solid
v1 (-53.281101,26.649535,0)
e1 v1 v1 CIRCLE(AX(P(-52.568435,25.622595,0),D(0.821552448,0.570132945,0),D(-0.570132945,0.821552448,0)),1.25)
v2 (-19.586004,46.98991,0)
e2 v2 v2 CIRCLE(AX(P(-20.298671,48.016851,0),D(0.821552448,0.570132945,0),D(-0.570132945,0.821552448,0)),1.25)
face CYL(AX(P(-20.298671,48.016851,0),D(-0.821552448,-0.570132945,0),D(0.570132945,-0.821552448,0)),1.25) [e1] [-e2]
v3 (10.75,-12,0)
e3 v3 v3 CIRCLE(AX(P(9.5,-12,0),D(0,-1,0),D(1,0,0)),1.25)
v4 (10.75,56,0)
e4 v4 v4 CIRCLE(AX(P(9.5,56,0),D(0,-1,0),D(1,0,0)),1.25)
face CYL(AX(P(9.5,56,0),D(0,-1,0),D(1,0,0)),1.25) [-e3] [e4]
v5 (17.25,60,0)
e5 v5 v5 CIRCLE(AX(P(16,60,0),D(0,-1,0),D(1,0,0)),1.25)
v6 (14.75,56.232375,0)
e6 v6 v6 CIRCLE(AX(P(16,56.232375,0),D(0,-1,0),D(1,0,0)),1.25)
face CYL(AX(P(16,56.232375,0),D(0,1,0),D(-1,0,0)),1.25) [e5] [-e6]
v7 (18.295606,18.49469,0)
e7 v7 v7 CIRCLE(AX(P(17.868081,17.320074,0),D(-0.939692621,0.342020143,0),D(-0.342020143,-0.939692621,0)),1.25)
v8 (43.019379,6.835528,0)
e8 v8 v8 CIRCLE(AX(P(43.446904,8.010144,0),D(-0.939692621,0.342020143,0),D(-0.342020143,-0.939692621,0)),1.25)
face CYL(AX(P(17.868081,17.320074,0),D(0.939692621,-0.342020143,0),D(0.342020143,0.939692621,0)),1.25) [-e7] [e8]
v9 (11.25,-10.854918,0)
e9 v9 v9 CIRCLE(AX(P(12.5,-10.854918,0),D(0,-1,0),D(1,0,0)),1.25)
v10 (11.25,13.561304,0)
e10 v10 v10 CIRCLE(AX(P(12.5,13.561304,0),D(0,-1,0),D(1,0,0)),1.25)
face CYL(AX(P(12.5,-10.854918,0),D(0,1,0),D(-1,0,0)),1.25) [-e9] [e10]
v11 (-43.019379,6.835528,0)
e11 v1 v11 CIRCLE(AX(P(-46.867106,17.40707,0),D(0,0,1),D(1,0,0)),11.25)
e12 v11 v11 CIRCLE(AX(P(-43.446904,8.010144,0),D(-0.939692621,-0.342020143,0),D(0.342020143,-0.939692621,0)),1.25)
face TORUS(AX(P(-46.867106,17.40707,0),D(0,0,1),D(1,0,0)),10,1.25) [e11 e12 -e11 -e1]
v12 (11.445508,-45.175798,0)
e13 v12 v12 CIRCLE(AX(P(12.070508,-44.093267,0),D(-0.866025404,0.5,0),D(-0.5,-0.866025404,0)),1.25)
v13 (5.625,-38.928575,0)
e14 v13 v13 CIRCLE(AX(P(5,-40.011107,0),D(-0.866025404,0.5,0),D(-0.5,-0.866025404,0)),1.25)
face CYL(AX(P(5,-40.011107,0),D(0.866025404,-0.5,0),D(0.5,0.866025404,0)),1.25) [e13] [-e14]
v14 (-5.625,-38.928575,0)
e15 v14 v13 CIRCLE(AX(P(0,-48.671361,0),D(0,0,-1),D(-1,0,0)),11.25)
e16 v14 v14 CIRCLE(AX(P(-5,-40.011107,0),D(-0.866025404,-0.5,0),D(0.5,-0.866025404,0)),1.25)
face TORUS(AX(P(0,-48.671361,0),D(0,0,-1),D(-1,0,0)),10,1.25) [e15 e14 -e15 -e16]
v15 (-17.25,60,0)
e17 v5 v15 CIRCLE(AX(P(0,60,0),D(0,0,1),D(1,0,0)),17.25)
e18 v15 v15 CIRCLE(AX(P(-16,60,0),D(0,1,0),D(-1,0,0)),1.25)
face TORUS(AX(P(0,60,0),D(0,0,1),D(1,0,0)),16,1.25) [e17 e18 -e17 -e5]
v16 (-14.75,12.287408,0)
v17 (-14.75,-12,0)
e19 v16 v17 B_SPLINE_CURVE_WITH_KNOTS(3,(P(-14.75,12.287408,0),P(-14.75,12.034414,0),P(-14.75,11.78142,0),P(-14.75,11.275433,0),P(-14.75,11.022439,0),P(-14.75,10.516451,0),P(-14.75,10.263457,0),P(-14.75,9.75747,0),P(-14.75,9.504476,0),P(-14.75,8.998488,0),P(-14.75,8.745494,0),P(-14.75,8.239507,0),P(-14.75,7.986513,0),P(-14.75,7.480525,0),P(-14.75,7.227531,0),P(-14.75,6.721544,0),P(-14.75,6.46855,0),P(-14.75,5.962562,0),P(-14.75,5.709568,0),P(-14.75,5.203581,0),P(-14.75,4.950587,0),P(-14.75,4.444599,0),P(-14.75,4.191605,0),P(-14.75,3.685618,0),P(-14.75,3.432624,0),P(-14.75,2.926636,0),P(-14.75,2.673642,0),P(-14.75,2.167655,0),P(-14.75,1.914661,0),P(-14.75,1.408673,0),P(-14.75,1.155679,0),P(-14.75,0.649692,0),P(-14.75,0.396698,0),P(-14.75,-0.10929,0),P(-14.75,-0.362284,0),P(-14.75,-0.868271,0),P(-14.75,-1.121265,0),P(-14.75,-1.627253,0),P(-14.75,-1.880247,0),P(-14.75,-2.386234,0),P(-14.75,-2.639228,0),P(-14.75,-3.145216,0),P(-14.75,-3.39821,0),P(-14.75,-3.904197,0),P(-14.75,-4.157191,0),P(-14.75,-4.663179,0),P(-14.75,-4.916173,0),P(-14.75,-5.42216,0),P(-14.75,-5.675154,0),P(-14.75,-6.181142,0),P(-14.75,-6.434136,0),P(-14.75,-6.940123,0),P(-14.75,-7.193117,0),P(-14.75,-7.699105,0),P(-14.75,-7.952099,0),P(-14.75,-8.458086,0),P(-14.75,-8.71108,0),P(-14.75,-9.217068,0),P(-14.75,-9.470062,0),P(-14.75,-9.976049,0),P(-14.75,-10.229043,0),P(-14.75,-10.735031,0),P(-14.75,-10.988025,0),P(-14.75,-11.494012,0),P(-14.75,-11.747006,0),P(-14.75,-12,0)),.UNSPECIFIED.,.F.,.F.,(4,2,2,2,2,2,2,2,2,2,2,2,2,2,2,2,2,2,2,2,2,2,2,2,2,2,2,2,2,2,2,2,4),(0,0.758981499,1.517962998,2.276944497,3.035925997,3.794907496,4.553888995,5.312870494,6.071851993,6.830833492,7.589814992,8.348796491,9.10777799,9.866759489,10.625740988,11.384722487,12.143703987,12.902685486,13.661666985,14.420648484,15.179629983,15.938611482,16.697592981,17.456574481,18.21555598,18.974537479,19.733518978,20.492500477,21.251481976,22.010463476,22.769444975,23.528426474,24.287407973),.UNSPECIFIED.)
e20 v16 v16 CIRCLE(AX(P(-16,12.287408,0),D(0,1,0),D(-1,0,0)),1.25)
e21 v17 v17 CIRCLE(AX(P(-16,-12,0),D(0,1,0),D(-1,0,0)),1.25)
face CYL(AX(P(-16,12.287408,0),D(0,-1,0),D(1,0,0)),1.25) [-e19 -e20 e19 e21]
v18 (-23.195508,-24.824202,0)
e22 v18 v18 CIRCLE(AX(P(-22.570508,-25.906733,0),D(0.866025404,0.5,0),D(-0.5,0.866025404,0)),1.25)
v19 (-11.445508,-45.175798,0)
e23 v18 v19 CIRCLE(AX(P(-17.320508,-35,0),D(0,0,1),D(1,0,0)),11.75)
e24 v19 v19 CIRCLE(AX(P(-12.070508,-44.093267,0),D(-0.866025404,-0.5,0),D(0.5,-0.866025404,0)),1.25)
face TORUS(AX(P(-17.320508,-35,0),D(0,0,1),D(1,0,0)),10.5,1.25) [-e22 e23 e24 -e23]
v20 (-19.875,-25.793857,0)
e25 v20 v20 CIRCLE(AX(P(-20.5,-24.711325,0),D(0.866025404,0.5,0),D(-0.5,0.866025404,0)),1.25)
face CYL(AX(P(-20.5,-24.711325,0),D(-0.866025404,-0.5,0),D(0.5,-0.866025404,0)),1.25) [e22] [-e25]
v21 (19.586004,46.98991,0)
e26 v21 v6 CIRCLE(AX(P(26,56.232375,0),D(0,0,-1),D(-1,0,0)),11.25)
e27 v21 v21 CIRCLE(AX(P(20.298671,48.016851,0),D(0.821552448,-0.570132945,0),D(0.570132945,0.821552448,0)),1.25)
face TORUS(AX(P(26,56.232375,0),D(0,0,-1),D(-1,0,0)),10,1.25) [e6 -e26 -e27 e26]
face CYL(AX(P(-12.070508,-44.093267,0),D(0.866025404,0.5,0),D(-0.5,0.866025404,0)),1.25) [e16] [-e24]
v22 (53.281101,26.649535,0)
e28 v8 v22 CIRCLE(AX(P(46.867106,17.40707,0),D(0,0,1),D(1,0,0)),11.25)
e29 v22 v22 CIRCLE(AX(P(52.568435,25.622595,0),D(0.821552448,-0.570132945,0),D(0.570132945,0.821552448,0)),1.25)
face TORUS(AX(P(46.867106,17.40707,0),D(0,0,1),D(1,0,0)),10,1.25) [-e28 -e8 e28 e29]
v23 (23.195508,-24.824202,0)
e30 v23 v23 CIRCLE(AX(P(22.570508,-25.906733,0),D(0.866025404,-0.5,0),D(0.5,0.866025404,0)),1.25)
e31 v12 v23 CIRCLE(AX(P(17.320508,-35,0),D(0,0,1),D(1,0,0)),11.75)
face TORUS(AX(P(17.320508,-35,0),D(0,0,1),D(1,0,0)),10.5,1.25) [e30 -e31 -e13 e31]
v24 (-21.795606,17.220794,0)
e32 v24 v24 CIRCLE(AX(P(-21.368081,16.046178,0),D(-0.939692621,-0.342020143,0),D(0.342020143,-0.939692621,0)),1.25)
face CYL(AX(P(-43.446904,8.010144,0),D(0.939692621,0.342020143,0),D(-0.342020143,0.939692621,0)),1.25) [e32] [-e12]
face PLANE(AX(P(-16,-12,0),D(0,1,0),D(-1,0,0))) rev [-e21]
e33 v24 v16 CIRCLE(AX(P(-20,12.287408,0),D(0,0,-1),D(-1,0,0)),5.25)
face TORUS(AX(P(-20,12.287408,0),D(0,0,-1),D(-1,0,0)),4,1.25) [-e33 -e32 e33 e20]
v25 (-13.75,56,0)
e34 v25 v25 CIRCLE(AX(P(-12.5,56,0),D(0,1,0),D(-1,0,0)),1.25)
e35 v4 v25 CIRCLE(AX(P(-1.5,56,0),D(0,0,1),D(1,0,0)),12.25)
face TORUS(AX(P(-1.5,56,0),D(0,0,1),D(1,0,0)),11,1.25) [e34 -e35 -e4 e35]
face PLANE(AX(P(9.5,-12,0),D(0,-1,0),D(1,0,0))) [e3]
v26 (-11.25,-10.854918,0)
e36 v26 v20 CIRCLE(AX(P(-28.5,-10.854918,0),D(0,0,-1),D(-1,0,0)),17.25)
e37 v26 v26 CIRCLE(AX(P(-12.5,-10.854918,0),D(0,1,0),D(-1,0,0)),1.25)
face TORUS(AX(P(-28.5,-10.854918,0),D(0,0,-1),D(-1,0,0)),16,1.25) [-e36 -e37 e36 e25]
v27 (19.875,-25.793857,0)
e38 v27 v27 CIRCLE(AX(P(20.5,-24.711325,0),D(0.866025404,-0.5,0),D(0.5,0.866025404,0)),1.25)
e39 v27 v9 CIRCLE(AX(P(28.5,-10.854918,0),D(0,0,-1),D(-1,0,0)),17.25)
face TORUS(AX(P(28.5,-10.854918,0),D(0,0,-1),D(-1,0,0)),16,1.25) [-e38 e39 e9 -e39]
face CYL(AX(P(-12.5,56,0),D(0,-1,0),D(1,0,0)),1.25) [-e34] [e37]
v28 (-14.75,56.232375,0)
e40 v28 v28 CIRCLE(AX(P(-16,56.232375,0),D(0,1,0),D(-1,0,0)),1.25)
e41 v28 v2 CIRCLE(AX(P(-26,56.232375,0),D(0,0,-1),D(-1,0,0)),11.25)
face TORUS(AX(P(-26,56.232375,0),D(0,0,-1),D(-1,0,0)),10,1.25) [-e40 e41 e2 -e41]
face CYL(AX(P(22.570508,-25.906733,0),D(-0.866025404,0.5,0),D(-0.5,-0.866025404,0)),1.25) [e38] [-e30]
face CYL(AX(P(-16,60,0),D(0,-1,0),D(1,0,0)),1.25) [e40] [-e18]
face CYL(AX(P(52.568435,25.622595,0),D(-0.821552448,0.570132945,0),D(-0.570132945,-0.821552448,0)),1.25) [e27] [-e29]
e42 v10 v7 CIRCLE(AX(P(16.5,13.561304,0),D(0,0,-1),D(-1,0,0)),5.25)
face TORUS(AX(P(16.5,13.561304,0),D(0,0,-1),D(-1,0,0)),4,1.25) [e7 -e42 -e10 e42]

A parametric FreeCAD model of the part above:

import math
import FreeCAD as App
import Part
import Sketcher
from FreeCAD import Vector
Q = App.Units.Quantity

doc = App.newDocument("Part")
body = doc.addObject("PartDesign::Body", "Body")

# Sketch on XZ plane
sketch1 = body.newObject("Sketcher::SketchObject", "Sketch")
sketch1.AttachmentSupport = (doc.getObject("XZ_Plane"), [""])
sketch1.MapMode = "FlatFace"
sketch1.AttachmentOffset = App.Placement(Vector(0, 0, 12), App.Rotation())
sketch1.addGeometry(Part.Circle(Vector(9.5, 0, 0), Vector(0, 0, 1), 1.2), False)
sketch1.addConstraint([
    Sketcher.Constraint("PointOnObject", 0, 3, -1),
    Sketcher.Constraint("Diameter", 0, 2.5),
    Sketcher.Constraint("DistanceX", -1, 1, 0, 3, 9.5),
])

# Sketch on XY plane
sketch2 = body.newObject("Sketcher::SketchObject", "Sketch001")
sketch2.AttachmentSupport = (doc.getObject("XY_Plane"), [""])
sketch2.MapMode = "FlatFace"
sketch2.addGeometry([
    Part.LineSegment(Vector(-16, -12, 0), Vector(-16, 12.3, 0)),  # 0
    Part.ArcOfCircle(Part.Circle(Vector(-20, 12.3, 0), Vector(0, 0, 1), 4), math.radians(0), math.radians(110)),  # 1
    Part.LineSegment(Vector(-21.4, 16, 0), Vector(-43.4, 8, 0)),  # 2
    Part.ArcOfCircle(Part.Circle(Vector(-46.9, 17.4, 0), Vector(0, 0, 1), 10), math.radians(125), math.radians(290)),  # 3
    Part.LineSegment(Vector(-52.6, 25.6, 0), Vector(-20.3, 48, 0)),  # 4
    Part.ArcOfCircle(Part.Circle(Vector(-26, 56.2, 0), Vector(0, 0, 1), 10), math.radians(-55), math.radians(0)),  # 5
    Part.LineSegment(Vector(-16, 56.2, 0), Vector(-16, 60, 0)),  # 6
    Part.ArcOfCircle(Part.Circle(Vector(0, 60, 0), Vector(0, 0, 1), 16), math.radians(0), math.radians(180)),  # 7
    Part.LineSegment(Vector(16, 60, 0), Vector(16, 56.2, 0)),  # 8
    Part.ArcOfCircle(Part.Circle(Vector(26, 56.2, 0), Vector(0, 0, 1), 10), math.radians(180), math.radians(235)),  # 9
    Part.LineSegment(Vector(20.3, 48, 0), Vector(52.6, 25.6, 0)),  # 10
    Part.ArcOfCircle(Part.Circle(Vector(46.9, 17.4, 0), Vector(0, 0, 1), 10), math.radians(-110), math.radians(55)),  # 11
    Part.LineSegment(Vector(43.4, 8, 0), Vector(17.9, 17.3, 0)),  # 12
    Part.ArcOfCircle(Part.Circle(Vector(16.5, 13.6, 0), Vector(0, 0, 1), 4), math.radians(70), math.radians(180)),  # 13
    Part.LineSegment(Vector(12.5, 13.6, 0), Vector(12.5, -10.9, 0)),  # 14
    Part.ArcOfCircle(Part.Circle(Vector(28.5, -10.9, 0), Vector(0, 0, 1), 16), math.radians(180), math.radians(240)),  # 15
    Part.LineSegment(Vector(20.5, -24.7, 0), Vector(22.6, -25.9, 0)),  # 16
    Part.ArcOfCircle(Part.Circle(Vector(17.3, -35, 0), Vector(0, 0, 1), 10.5), math.radians(-120), math.radians(60)),  # 17
    Part.LineSegment(Vector(12.1, -44.1, 0), Vector(5, -40, 0)),  # 18
    Part.ArcOfCircle(Part.Circle(Vector(0, -48.7, 0), Vector(0, 0, 1), 10), math.radians(60), math.radians(120)),  # 19
    Part.LineSegment(Vector(-5, -40, 0), Vector(-12.1, -44.1, 0)),  # 20
    Part.ArcOfCircle(Part.Circle(Vector(-17.3, -35, 0), Vector(0, 0, 1), 10.5), math.radians(120), math.radians(300)),  # 21
    Part.LineSegment(Vector(-22.6, -25.9, 0), Vector(-20.5, -24.7, 0)),  # 22
    Part.ArcOfCircle(Part.Circle(Vector(-28.5, -10.9, 0), Vector(0, 0, 1), 16), math.radians(-60), math.radians(0)),  # 23
    Part.LineSegment(Vector(-12.5, -10.9, 0), Vector(-12.5, 56, 0)),  # 24
    Part.ArcOfCircle(Part.Circle(Vector(-1.5, 56, 0), Vector(0, 0, 1), 11), math.radians(0), math.radians(180)),  # 25
    Part.LineSegment(Vector(9.5, 56, 0), Vector(9.5, -12, 0)),  # 26
], False)
sketch2.addConstraint([
    Sketcher.Constraint("Tangent", 0, 2, 1, 1),
    Sketcher.Constraint("Tangent", 1, 2, 2, 1),
    Sketcher.Constraint("Tangent", 2, 2, 3, 2),
    Sketcher.Constraint("Tangent", 3, 1, 4, 1),
    Sketcher.Constraint("Tangent", 4, 2, 5, 1),
    Sketcher.Constraint("Tangent", 5, 2, 6, 1),
    Sketcher.Constraint("Tangent", 6, 2, 7, 2),
    Sketcher.Constraint("Tangent", 7, 1, 8, 1),
    Sketcher.Constraint("Tangent", 8, 2, 9, 1),
    Sketcher.Constraint("Tangent", 9, 2, 10, 1),
    Sketcher.Constraint("Tangent", 10, 2, 11, 2),
    Sketcher.Constraint("Tangent", 11, 1, 12, 1),
    Sketcher.Constraint("Tangent", 12, 2, 13, 1),
    Sketcher.Constraint("Tangent", 13, 2, 14, 1),
    Sketcher.Constraint("Tangent", 14, 2, 15, 1),
    Sketcher.Constraint("Tangent", 15, 2, 16, 1),
    Sketcher.Constraint("Tangent", 16, 2, 17, 2),
    Sketcher.Constraint("Tangent", 17, 1, 18, 1),
    Sketcher.Constraint("Tangent", 18, 2, 19, 1),
    Sketcher.Constraint("Tangent", 19, 2, 20, 1),
    Sketcher.Constraint("Tangent", 20, 2, 21, 2),
    Sketcher.Constraint("Tangent", 21, 1, 22, 1),
    Sketcher.Constraint("Tangent", 22, 2, 23, 1),
    Sketcher.Constraint("Tangent", 23, 2, 24, 1),
    Sketcher.Constraint("Tangent", 24, 2, 25, 2),
    Sketcher.Constraint("Tangent", 25, 1, 26, 1),
    Sketcher.Constraint("Vertical", 0),
    Sketcher.Constraint("Vertical", 6),
    Sketcher.Constraint("Vertical", 8),
    Sketcher.Constraint("Vertical", 14),
    Sketcher.Constraint("Vertical", 24),
    Sketcher.Constraint("Vertical", 26),
    Sketcher.Constraint("Equal", 3, 5),
    Sketcher.Constraint("Equal", 5, 9),
    Sketcher.Constraint("Equal", 9, 11),
    Sketcher.Constraint("Equal", 1, 13),
    Sketcher.Constraint("Equal", 7, 15),
    Sketcher.Constraint("Equal", 11, 19),
    Sketcher.Constraint("Equal", 17, 21),
    Sketcher.Constraint("Equal", 15, 23),
    Sketcher.Constraint("Symmetric", 5, 3, 9, 3, -2),
    Sketcher.Constraint("Symmetric", 3, 3, 11, 3, -2),
    Sketcher.Constraint("Symmetric", 17, 3, 21, 3, -2),
    Sketcher.Constraint("Symmetric", 15, 3, 23, 3, -2),
    Sketcher.Constraint("PointOnObject", 19, 3, -2),
    Sketcher.Constraint("Parallel", 16, 18),
    Sketcher.Constraint("Horizontal", 2, 2, 11, 1),
    Sketcher.Constraint("Horizontal", 0, 1, 26, 2),
    Sketcher.Constraint("Vertical", 0, 2, 5, 2),
    Sketcher.Constraint("Radius", 1, 4.0),
    Sketcher.Constraint("Radius", 3, 10.0),
    Sketcher.Constraint("Radius", 7, 16.0),
    Sketcher.Constraint("Radius", 25, 11.0),
    Sketcher.Constraint("Radius", 17, 10.5),
    Sketcher.Constraint("DistanceY", 26, 2, 26, 1, 68.0),
    Sketcher.Constraint("Angle", 2, Q("-160 deg")),
    Sketcher.Constraint("Angle", 16, Q("-30 deg")),
    Sketcher.Constraint("DistanceY", -1, 1, 7, 3, 60.0),
    Sketcher.Constraint("DistanceY", 17, 3, -1, 1, 35.0),
    Sketcher.Constraint("DistanceY", -1, 1, 25, 3, 56.0),
    Sketcher.Constraint("DistanceX", 23, 3, 13, 3, 45.0),
    Sketcher.Constraint("DistanceY", 24, 1, 24, 2, 66.854918),
    Sketcher.Constraint("DistanceY", 0, 1, 0, 2, 24.287408),
    Sketcher.Constraint("DistanceY", 6, 1, 6, 2, 3.767625),
    Sketcher.Constraint("DistanceY", -1, 1, 3, 3, 17.40707),
])
doc.recompute()

additivepipe = body.newObject("PartDesign::AdditivePipe", "AdditivePipe")
additivepipe.Profile = sketch1
additivepipe.Spine = (sketch2, ["Edge1", "Edge2", "Edge3", "Edge4", "Edge5", "Edge6", "Edge7", "Edge8", "Edge9", "Edge10", "Edge11", "Edge12", "Edge13", "Edge14", "Edge15", "Edge16", "Edge17", "Edge18", "Edge19", "Edge20", "Edge21", "Edge22", "Edge23", "Edge24", "Edge25", "Edge26", "Edge27"])

doc.recompute()
